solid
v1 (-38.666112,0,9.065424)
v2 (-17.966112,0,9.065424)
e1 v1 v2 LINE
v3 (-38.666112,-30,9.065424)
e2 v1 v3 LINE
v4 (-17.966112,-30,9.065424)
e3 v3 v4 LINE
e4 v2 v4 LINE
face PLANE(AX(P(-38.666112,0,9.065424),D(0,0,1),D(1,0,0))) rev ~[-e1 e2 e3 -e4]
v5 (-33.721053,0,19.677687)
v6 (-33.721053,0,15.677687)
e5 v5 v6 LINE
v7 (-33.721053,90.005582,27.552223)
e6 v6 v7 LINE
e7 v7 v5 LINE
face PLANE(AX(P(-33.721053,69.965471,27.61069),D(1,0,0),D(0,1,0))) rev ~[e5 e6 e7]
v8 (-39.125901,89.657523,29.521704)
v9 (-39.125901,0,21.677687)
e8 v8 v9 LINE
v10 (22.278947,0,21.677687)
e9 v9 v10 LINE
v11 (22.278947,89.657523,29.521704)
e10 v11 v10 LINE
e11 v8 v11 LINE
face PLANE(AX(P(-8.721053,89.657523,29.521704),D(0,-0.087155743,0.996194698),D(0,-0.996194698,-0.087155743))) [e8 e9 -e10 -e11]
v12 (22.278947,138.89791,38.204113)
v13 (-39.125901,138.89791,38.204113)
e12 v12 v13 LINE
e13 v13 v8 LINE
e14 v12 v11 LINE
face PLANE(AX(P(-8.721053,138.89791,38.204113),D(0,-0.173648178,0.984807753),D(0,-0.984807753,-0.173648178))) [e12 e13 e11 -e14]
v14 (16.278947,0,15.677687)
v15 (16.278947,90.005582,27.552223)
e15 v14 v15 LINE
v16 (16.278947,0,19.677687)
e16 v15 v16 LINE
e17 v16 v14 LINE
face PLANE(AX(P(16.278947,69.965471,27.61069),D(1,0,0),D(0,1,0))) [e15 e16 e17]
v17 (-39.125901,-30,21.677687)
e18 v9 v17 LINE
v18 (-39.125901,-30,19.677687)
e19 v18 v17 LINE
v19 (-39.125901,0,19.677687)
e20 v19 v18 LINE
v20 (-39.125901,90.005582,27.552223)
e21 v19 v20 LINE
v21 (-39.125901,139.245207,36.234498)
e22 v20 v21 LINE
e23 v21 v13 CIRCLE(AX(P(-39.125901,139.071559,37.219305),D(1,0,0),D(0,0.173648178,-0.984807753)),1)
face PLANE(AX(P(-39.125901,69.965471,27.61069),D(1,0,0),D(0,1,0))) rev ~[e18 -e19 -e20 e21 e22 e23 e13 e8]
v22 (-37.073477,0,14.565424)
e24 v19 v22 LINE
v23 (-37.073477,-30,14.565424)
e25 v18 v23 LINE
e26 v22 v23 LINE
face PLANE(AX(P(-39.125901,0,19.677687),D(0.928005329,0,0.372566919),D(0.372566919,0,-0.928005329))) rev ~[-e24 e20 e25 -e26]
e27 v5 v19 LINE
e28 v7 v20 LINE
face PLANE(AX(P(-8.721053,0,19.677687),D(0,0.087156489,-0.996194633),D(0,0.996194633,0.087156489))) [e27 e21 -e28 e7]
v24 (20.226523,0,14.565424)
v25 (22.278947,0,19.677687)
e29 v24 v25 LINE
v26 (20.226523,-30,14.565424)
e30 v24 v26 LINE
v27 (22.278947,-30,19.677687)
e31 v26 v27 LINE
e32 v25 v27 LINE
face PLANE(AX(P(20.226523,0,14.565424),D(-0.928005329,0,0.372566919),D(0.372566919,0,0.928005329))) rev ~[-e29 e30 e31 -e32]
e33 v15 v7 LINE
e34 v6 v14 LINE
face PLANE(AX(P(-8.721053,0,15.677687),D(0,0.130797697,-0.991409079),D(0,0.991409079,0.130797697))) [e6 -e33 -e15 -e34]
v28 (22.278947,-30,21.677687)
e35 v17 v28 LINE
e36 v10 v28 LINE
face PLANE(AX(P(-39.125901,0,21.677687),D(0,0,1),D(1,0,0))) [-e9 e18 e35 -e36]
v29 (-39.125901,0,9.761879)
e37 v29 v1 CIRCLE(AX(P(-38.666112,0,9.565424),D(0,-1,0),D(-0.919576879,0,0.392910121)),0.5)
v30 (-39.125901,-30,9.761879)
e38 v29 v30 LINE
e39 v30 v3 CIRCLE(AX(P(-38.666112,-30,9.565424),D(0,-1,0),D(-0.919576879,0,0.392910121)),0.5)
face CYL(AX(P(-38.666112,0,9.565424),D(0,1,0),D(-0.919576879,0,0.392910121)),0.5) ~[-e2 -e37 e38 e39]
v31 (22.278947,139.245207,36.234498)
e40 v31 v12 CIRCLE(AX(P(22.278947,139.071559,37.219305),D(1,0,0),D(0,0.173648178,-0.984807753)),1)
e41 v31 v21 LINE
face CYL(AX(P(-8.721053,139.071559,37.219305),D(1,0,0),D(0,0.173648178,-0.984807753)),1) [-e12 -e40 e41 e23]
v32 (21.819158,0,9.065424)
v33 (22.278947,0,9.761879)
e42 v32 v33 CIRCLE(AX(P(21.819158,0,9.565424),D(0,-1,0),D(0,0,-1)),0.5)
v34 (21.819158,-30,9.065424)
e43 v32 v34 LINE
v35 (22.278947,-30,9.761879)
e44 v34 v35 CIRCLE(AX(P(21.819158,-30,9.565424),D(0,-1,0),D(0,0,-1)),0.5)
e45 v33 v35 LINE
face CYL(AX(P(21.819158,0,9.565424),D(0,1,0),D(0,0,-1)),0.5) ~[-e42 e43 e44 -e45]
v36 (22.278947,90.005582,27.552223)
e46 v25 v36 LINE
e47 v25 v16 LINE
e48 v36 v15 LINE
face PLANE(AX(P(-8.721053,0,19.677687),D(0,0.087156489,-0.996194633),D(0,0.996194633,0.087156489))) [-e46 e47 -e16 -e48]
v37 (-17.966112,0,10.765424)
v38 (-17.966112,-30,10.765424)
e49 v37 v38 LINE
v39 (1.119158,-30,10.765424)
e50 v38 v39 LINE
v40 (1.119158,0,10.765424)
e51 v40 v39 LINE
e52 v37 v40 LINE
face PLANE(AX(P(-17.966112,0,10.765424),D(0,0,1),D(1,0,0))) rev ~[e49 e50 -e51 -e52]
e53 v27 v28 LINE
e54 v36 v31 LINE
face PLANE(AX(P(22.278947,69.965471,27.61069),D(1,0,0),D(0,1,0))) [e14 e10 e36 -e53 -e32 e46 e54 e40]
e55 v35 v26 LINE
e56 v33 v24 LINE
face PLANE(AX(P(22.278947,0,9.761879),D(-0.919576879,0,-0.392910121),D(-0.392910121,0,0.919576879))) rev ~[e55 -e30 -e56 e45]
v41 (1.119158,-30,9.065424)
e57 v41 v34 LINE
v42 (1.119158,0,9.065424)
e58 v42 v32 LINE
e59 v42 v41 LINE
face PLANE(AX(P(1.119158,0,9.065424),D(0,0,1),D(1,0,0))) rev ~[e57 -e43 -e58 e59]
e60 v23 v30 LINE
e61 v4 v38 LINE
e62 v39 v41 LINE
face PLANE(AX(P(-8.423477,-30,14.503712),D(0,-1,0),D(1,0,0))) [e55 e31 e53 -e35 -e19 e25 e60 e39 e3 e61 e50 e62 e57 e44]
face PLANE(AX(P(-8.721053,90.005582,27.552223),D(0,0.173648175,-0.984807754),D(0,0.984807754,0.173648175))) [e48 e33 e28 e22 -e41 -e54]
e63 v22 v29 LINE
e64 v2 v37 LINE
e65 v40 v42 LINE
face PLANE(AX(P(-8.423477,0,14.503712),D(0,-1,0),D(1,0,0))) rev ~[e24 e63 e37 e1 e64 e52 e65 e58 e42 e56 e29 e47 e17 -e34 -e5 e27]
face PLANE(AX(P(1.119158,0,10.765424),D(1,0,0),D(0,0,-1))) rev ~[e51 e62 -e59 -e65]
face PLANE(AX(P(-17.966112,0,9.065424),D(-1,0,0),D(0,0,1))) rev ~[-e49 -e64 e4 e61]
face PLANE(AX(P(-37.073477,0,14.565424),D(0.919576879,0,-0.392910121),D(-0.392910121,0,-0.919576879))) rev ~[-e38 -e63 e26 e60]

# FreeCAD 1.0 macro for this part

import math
import FreeCAD as App
import Part
import Sketcher

V = App.Vector
Q = App.Units.Quantity

doc = App.newDocument("Part")
params = doc.addObject("Spreadsheet::Sheet", "Params")
for row, (alias, value) in enumerate([
    ("sketch1_radius", "0.5 mm"),
    ("sketch1_height", "2 mm"),
    ("sketch1_width", "20.7 mm"),
    ("sketch1_height2", "1.7 mm"),
    ("pad1_length", "30 mm"),
    ("sketch2_radius", "1 mm"),
    ("sketch2_height", "2 mm"),
    ("sketch2_length", "50 mm"),
    ("sketch2_length2", "90 mm"),
    ("pad2_length", "31 mm"),
    ("pad2_length2", "30.404847 mm"),
    ("sketch3_radius", "1 mm"),
    ("sketch3_height", "6 mm"),
    ("sketch3_length", "50 mm"),
    ("sketch3_length2", "90 mm"),
    ("pad3_length", "50 mm"),
], start=1):
    params.set(f"A{row}", alias)
    params.set(f"B{row}", "=" + value)
    params.setAlias(f"B{row}", alias)

body = doc.addObject("PartDesign::Body", "Body")

sketch1 = body.newObject("Sketcher::SketchObject", "Sketch")
sketch1.AttachmentSupport = (doc.getObject("XZ_Plane"), [""])
sketch1.MapMode = "FlatFace"
sketch1.addGeometry(Part.LineSegment(V(-37.1, 14.6, 0), V(-39.1, 9.8, 0)), False)
sketch1.addGeometry(Part.ArcOfCircle(Part.Circle(V(-38.7, 9.6, 0), V(0, 0, 1), 0.5), math.radians(157), math.radians(270)), False)
sketch1.addGeometry(Part.LineSegment(V(-38.7, 9.1, 0), V(-18, 9.1, 0)), False)
sketch1.addGeometry(Part.LineSegment(V(-18, 9.1, 0), V(-18, 10.8, 0)), False)
sketch1.addGeometry(Part.LineSegment(V(-18, 10.8, 0), V(1.1, 10.8, 0)), False)
sketch1.addGeometry(Part.LineSegment(V(1.1, 10.8, 0), V(1.1, 9.1, 0)), False)
sketch1.addGeometry(Part.LineSegment(V(1.1, 9.1, 0), V(21.8, 9.1, 0)), False)
sketch1.addGeometry(Part.ArcOfCircle(Part.Circle(V(21.8, 9.6, 0), V(0, 0, 1), 0.5), math.radians(-90), math.radians(23)), False)
sketch1.addGeometry(Part.LineSegment(V(22.3, 9.8, 0), V(20.2, 14.6, 0)), False)
sketch1.addGeometry(Part.LineSegment(V(20.2, 14.6, 0), V(22.3, 19.7, 0)), False)
sketch1.addGeometry(Part.LineSegment(V(22.3, 19.7, 0), V(22.3, 21.7, 0)), False)
sketch1.addGeometry(Part.LineSegment(V(22.3, 21.7, 0), V(-39.1, 21.7, 0)), False)
sketch1.addGeometry(Part.LineSegment(V(-39.1, 21.7, 0), V(-39.1, 19.7, 0)), False)
sketch1.addGeometry(Part.LineSegment(V(-39.1, 19.7, 0), V(-37.1, 14.6, 0)), False)
sketch1.addConstraint(Sketcher.Constraint("Tangent", 0, 2, 1, 1))
sketch1.addConstraint(Sketcher.Constraint("Tangent", 1, 2, 2, 1))
sketch1.addConstraint(Sketcher.Constraint("Coincident", 2, 2, 3, 1))
sketch1.addConstraint(Sketcher.Constraint("Coincident", 3, 2, 4, 1))
sketch1.addConstraint(Sketcher.Constraint("Coincident", 4, 2, 5, 1))
sketch1.addConstraint(Sketcher.Constraint("Coincident", 5, 2, 6, 1))
sketch1.addConstraint(Sketcher.Constraint("Tangent", 6, 2, 7, 1))
sketch1.addConstraint(Sketcher.Constraint("Tangent", 7, 2, 8, 1))
sketch1.addConstraint(Sketcher.Constraint("Coincident", 8, 2, 9, 1))
sketch1.addConstraint(Sketcher.Constraint("Coincident", 9, 2, 10, 1))
sketch1.addConstraint(Sketcher.Constraint("Coincident", 10, 2, 11, 1))
sketch1.addConstraint(Sketcher.Constraint("Coincident", 11, 2, 12, 1))
sketch1.addConstraint(Sketcher.Constraint("Coincident", 12, 2, 13, 1))
sketch1.addConstraint(Sketcher.Constraint("Coincident", 13, 2, 0, 1))
sketch1.addConstraint(Sketcher.Constraint("Horizontal", 2))
sketch1.addConstraint(Sketcher.Constraint("Vertical", 3))
sketch1.addConstraint(Sketcher.Constraint("Horizontal", 4))
sketch1.addConstraint(Sketcher.Constraint("Vertical", 5))
sketch1.addConstraint(Sketcher.Constraint("Horizontal", 6))
sketch1.addConstraint(Sketcher.Constraint("Vertical", 10))
sketch1.addConstraint(Sketcher.Constraint("Horizontal", 11))
sketch1.addConstraint(Sketcher.Constraint("Vertical", 12))
sketch1.addConstraint(Sketcher.Constraint("Equal", 1, 7))
sketch1.addConstraint(Sketcher.Constraint("Horizontal", 1, 3, 7, 3))
sketch1.addConstraint(Sketcher.Constraint("Horizontal", 0, 2, 7, 2))
sketch1.addConstraint(Sketcher.Constraint("Horizontal", 9, 2, 12, 2))
sketch1.addConstraint(Sketcher.Constraint("Horizontal", 8, 2, 13, 2))
sketch1.addConstraint(Sketcher.Constraint("Vertical", 7, 2, 9, 2))
sketch1.addConstraint(Sketcher.Constraint("Vertical", 0, 2, 11, 2))
sketch1.addConstraint(Sketcher.Constraint("Equal", 2, 6))
sketch1.addConstraint(Sketcher.Constraint("Radius", 1, 0.5))
sketch1.addConstraint(Sketcher.Constraint("DistanceY", 10, 1, 10, 2, 2.0))
sketch1.addConstraint(Sketcher.Constraint("DistanceX", 2, 1, 2, 2, 20.7))
sketch1.addConstraint(Sketcher.Constraint("DistanceY", 3, 1, 3, 2, 1.7))
sketch1.addConstraint(Sketcher.Constraint("DistanceY", 7, 3, 8, 2, 5.0))
sketch1.addConstraint(Sketcher.Constraint("DistanceX", 4, 1, 4, 2, 19.085271))
sketch1.addConstraint(Sketcher.Constraint("DistanceX", 0, 2, -1, 1, 39.125901))
sketch1.addConstraint(Sketcher.Constraint("DistanceX", 11, 2, 11, 1, 61.404847))
sketch1.addConstraint(Sketcher.Constraint("DistanceY", -1, 1, 0, 2, 9.761879))
sketch1.addConstraint(Sketcher.Constraint("DistanceY", 7, 2, 9, 2, 9.915808))
sketch1.setExpression("Constraints[30]", "Params.sketch1_radius")
sketch1.setExpression("Constraints[31]", "Params.sketch1_height")
sketch1.setExpression("Constraints[32]", "Params.sketch1_width")
sketch1.setExpression("Constraints[33]", "Params.sketch1_height2")
pad1 = body.newObject("PartDesign::Pad", "Pad")
pad1.Profile = sketch1
pad1.setExpression("Length", "Params.pad1_length")

sketch2 = body.newObject("Sketcher::SketchObject", "Sketch001")
sketch2.AttachmentSupport = (doc.getObject("YZ_Plane"), [""])
sketch2.MapMode = "FlatFace"
sketch2.AttachmentOffset = App.Placement(V(0, 0, -8.721053), App.Rotation())
sketch2.addGeometry(Part.LineSegment(V(138.89791, 38.204113, 0), V(89.657523, 29.521704, 0)), False)
sketch2.addGeometry(Part.LineSegment(V(89.657523, 29.521704, 0), V(0, 21.677687, 0)), False)
sketch2.addGeometry(Part.LineSegment(V(0, 21.677687, 0), V(0, 19.677687, 0)), False)
sketch2.addGeometry(Part.LineSegment(V(0, 19.677687, 0), V(90.005582, 27.552223, 0)), False)
sketch2.addGeometry(Part.LineSegment(V(90.005582, 27.552223, 0), V(139.245207, 36.234498, 0)), False)
sketch2.addGeometry(Part.ArcOfCircle(Part.Circle(V(139.071559, 37.219305, 0), V(0, 0, 1), 1), math.radians(-80), math.radians(100)), False)
sketch2.addConstraint(Sketcher.Constraint("Coincident", 0, 2, 1, 1))
sketch2.addConstraint(Sketcher.Constraint("Coincident", 1, 2, 2, 1))
sketch2.addConstraint(Sketcher.Constraint("Coincident", 2, 2, 3, 1))
sketch2.addConstraint(Sketcher.Constraint("Coincident", 3, 2, 4, 1))
sketch2.addConstraint(Sketcher.Constraint("Coincident", 4, 2, 5, 1))
sketch2.addConstraint(Sketcher.Constraint("Coincident", 5, 2, 0, 1))
sketch2.addConstraint(Sketcher.Constraint("Vertical", 2))
sketch2.addConstraint(Sketcher.Constraint("PointOnObject", 1, 2, -2))
sketch2.addConstraint(Sketcher.Constraint("Radius", 5, 1.0))
sketch2.addConstraint(Sketcher.Constraint("DistanceY", 2, 2, 2, 1, 2.0))
sketch2.addConstraint(Sketcher.Constraint("Distance", 0, 50.0))
sketch2.addConstraint(Sketcher.Constraint("Distance", 1, 90.0))
sketch2.addConstraint(Sketcher.Constraint("DistanceY", 0, 2, 5, 3, 7.697601))
sketch2.addConstraint(Sketcher.Constraint("DistanceX", -1, 1, 5, 3, 139.071559))
sketch2.addConstraint(Sketcher.Constraint("DistanceX", -1, 1, 5, 2, 138.89791))
sketch2.addConstraint(Sketcher.Constraint("DistanceX", 0, 2, 3, 2, 0.348059))
sketch2.addConstraint(Sketcher.Constraint("DistanceY", 3, 2, 0, 2, 1.969481))
sketch2.addConstraint(Sketcher.Constraint("DistanceX", 5, 3, 4, 2, 0.173648))
sketch2.addConstraint(Sketcher.Constraint("DistanceY", -1, 1, 5, 3, 37.219305))
sketch2.setExpression("Constraints[8]", "Params.sketch2_radius")
sketch2.setExpression("Constraints[9]", "Params.sketch2_height")
sketch2.setExpression("Constraints[10]", "Params.sketch2_length")
sketch2.setExpression("Constraints[11]", "Params.sketch2_length2")
pad2 = body.newObject("PartDesign::Pad", "Pad001")
pad2.Profile = sketch2
pad2.Type = "TwoLengths"
pad2.setExpression("Length", "Params.pad2_length")
pad2.setExpression("Length2", "Params.pad2_length2")

sketch3 = body.newObject("Sketcher::SketchObject", "Sketch002")
sketch3.AttachmentSupport = (doc.getObject("YZ_Plane"), [""])
sketch3.MapMode = "FlatFace"
sketch3.AttachmentOffset = App.Placement(V(0, 0, -8.721053), App.Rotation())
sketch3.addGeometry(Part.LineSegment(V(138.9, 38.2, 0), V(89.7, 29.5, 0)), False)
sketch3.addGeometry(Part.LineSegment(V(89.7, 29.5, 0), V(0, 21.7, 0)), False)
sketch3.addGeometry(Part.LineSegment(V(0, 21.7, 0), V(0, 15.7, 0)), False)
sketch3.addGeometry(Part.LineSegment(V(0, 15.7, 0), V(90, 27.6, 0)), False)
sketch3.addGeometry(Part.LineSegment(V(90, 27.6, 0), V(139.2, 36.2, 0)), False)
sketch3.addGeometry(Part.ArcOfCircle(Part.Circle(V(139.1, 37.2, 0), V(0, 0, 1), 1), math.radians(-80), math.radians(100)), False)
sketch3.addConstraint(Sketcher.Constraint("Coincident", 0, 2, 1, 1))
sketch3.addConstraint(Sketcher.Constraint("Coincident", 1, 2, 2, 1))
sketch3.addConstraint(Sketcher.Constraint("Coincident", 2, 2, 3, 1))
sketch3.addConstraint(Sketcher.Constraint("Coincident", 3, 2, 4, 1))
sketch3.addConstraint(Sketcher.Constraint("Tangent", 4, 2, 5, 1))
sketch3.addConstraint(Sketcher.Constraint("Tangent", 5, 2, 0, 1))
sketch3.addConstraint(Sketcher.Constraint("Vertical", 2))
sketch3.addConstraint(Sketcher.Constraint("PointOnObject", 1, 2, -2))
sketch3.addConstraint(Sketcher.Constraint("Parallel", 0, 4))
sketch3.addConstraint(Sketcher.Constraint("Radius", 5, 1.0))
sketch3.addConstraint(Sketcher.Constraint("DistanceY", 2, 2, 2, 1, 6.0))
sketch3.addConstraint(Sketcher.Constraint("Angle", 0, Q("-170 deg")))
sketch3.addConstraint(Sketcher.Constraint("Angle", 1, Q("-175 deg")))
sketch3.addConstraint(Sketcher.Constraint("Distance", 0, 50.0))
sketch3.addConstraint(Sketcher.Constraint("Distance", 1, 90.0))
sketch3.addConstraint(Sketcher.Constraint("DistanceX", 0, 2, 3, 2, 0.348059))
sketch3.addConstraint(Sketcher.Constraint("DistanceY", -1, 1, 5, 3, 37.219305))
sketch3.setExpression("Constraints[9]", "Params.sketch3_radius")
sketch3.setExpression("Constraints[10]", "Params.sketch3_height")
sketch3.setExpression("Constraints[13]", "Params.sketch3_length")
sketch3.setExpression("Constraints[14]", "Params.sketch3_length2")
pad3 = body.newObject("PartDesign::Pad", "Pad002")
pad3.Profile = sketch3
pad3.setExpression("Length", "Params.pad3_length")
pad3.Midplane = True

doc.recompute()
